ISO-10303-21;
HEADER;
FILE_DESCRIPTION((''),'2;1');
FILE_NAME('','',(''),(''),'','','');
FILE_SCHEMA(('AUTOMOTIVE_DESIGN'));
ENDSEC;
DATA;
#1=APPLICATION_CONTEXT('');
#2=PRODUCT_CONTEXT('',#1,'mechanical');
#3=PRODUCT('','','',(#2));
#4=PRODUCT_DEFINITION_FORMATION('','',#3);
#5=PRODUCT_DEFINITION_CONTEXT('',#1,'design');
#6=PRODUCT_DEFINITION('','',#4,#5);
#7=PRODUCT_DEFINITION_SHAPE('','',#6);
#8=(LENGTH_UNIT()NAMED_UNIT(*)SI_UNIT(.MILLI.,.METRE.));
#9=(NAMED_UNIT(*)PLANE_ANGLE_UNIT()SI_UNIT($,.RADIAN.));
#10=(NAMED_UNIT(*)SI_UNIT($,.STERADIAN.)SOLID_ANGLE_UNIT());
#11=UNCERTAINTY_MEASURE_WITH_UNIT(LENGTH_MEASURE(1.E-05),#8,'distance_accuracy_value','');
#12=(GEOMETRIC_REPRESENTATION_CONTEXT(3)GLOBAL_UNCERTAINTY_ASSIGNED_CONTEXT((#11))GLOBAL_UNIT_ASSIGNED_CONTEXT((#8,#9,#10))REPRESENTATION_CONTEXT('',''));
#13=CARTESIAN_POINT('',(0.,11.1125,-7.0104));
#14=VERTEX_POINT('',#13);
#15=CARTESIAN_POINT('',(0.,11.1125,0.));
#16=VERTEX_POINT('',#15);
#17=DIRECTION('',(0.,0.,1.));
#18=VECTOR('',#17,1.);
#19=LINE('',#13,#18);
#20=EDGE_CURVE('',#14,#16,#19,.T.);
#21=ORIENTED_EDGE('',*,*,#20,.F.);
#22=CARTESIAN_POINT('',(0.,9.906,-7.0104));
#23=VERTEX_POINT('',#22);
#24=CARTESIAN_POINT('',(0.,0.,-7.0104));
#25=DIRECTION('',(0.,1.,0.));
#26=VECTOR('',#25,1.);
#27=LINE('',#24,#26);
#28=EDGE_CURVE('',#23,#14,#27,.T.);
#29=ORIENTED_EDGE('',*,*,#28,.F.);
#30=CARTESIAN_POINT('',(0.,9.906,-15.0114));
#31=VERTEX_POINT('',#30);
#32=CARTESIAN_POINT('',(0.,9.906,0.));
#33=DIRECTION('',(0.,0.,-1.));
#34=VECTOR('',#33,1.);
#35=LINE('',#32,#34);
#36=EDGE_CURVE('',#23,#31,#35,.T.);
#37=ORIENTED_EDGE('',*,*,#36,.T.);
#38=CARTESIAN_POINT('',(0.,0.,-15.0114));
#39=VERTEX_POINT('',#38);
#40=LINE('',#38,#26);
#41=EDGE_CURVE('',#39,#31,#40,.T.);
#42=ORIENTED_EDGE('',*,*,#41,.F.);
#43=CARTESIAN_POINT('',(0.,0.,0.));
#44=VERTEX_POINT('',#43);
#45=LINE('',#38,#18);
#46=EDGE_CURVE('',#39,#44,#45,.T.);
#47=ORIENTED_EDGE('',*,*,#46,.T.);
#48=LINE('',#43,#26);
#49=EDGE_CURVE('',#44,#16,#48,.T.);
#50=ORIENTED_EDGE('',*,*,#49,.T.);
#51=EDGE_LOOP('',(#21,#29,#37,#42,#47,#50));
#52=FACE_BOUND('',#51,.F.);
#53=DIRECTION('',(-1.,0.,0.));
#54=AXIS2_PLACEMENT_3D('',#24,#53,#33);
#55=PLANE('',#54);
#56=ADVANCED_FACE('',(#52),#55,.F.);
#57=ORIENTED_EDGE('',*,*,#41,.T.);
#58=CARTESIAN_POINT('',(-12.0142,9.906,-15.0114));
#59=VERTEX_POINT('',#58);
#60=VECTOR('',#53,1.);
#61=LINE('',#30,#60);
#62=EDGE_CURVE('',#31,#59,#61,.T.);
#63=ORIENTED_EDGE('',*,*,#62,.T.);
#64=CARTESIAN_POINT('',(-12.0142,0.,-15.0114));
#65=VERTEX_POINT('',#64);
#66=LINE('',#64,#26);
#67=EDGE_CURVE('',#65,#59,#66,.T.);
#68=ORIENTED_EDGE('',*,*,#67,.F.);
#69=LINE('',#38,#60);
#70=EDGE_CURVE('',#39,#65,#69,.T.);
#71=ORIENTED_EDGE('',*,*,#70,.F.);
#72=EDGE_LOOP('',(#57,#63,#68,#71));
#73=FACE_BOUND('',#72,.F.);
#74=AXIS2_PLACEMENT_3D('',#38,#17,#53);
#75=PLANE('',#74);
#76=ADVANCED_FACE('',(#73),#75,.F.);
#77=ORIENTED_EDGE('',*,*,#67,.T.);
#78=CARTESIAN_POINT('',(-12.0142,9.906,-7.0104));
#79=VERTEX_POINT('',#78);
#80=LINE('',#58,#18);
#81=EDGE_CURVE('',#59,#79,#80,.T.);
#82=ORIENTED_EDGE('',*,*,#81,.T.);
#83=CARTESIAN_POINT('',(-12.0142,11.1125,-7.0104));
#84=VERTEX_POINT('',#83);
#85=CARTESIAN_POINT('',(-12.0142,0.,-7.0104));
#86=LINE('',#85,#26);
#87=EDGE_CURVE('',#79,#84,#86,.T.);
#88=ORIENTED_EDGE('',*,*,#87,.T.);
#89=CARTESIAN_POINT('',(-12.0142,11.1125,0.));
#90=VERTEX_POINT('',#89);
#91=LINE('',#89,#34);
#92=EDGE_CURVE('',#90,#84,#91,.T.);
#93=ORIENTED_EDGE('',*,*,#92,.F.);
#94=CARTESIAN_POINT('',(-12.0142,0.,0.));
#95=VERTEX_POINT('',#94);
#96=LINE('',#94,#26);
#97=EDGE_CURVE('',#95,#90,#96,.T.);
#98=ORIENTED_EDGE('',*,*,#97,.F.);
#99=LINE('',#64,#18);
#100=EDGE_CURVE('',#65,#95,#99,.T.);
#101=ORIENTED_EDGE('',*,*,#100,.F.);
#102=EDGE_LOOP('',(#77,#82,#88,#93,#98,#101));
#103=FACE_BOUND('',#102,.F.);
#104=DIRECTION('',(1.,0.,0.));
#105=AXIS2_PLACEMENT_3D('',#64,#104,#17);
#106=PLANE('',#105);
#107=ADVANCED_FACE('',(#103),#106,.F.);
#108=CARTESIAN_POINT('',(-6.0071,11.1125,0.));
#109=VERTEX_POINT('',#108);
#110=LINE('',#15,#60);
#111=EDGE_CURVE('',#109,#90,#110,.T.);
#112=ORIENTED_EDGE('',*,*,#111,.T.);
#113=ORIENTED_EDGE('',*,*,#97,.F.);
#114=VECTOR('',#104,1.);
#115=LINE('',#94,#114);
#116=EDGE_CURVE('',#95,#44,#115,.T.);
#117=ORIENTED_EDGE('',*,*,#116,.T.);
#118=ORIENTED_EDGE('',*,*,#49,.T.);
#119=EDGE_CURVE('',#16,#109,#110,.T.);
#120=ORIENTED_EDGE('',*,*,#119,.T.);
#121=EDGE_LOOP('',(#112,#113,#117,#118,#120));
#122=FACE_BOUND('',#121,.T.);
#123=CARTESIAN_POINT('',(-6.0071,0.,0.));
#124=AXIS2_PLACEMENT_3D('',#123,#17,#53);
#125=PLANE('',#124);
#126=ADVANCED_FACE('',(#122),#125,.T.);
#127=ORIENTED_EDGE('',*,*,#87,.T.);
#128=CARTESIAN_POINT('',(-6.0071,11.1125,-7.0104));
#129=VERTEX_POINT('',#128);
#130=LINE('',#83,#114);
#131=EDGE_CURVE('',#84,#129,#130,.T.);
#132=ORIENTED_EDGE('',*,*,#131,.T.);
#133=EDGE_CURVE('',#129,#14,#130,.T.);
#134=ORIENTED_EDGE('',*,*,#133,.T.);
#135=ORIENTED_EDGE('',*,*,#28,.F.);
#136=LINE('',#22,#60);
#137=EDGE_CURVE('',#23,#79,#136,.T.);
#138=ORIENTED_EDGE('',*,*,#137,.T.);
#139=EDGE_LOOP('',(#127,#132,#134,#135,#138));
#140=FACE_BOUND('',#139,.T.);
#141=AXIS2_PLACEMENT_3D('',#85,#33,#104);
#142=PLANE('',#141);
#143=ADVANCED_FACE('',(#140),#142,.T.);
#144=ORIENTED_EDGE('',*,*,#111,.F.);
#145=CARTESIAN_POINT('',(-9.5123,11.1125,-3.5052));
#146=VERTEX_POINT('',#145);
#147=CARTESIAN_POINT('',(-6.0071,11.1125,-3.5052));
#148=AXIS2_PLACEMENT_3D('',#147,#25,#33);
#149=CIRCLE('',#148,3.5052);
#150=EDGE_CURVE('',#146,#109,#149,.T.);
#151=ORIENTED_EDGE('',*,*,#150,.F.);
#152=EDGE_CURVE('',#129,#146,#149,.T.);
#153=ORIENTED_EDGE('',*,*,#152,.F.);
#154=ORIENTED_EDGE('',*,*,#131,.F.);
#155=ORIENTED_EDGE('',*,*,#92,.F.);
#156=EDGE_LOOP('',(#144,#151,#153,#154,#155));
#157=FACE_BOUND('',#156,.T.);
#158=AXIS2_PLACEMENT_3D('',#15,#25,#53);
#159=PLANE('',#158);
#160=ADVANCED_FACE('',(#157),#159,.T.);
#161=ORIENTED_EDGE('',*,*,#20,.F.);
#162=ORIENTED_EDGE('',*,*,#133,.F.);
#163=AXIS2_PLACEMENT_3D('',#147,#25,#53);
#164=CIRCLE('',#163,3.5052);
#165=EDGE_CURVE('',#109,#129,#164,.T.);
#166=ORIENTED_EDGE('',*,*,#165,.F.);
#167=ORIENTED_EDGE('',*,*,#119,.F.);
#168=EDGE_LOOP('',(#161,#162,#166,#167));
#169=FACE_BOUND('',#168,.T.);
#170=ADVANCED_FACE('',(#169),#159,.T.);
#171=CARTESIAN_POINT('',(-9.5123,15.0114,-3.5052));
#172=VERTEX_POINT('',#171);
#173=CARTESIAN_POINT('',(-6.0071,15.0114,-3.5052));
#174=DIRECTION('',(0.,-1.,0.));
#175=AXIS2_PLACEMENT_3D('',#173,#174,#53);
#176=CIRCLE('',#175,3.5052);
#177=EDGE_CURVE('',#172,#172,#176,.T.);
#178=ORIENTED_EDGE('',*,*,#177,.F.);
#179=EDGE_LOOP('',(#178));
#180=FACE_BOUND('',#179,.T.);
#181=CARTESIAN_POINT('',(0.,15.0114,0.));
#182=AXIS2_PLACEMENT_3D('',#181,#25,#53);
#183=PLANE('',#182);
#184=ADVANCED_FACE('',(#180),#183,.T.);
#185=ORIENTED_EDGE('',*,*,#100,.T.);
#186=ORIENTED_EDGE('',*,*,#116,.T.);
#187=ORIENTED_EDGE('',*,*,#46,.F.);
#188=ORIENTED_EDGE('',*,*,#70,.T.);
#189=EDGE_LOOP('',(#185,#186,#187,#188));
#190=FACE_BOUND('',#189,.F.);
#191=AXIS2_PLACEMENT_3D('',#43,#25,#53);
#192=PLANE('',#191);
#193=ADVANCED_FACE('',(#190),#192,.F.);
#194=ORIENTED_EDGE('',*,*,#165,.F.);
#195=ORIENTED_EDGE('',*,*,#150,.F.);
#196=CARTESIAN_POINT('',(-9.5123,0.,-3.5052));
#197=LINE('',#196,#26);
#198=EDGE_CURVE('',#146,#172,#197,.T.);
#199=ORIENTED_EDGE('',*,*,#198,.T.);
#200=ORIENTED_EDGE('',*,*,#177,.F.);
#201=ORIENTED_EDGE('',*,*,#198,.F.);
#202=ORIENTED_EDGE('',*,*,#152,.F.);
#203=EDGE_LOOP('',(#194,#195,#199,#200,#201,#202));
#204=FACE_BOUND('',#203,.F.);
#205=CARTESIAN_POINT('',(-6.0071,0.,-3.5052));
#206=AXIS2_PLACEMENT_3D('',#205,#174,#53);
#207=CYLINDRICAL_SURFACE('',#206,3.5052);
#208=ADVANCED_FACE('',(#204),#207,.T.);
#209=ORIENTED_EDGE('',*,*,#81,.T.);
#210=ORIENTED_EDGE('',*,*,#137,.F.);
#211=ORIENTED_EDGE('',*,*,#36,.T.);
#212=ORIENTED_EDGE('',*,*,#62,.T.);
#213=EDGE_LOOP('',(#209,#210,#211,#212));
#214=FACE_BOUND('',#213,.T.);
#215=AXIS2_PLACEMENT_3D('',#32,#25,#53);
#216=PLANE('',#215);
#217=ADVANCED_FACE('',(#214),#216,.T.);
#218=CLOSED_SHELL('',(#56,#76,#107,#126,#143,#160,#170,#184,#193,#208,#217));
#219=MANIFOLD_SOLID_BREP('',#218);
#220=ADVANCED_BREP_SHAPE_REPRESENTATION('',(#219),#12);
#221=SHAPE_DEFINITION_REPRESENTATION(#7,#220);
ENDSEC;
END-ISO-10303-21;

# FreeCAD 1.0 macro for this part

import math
import FreeCAD as App
import Part
import Sketcher
Q = App.Units.Quantity


def add_polygon(sketch, points):
    """Adds a closed chain of lines whose ends are joined by coincident constraints."""
    first, n = sketch.GeometryCount, len(points)
    for a, b in zip(points, points[1:] + points[:1]):
        sketch.addGeometry(Part.LineSegment(App.Vector(*a, 0), App.Vector(*b, 0)), False)
    for i in range(n):
        sketch.addConstraint(Sketcher.Constraint("Coincident", first + i, 2, first + (i + 1) % n, 1))

doc = App.newDocument("Part")
body = doc.addObject("PartDesign::Body", "Body")

# Sketch on XZ plane
sketch1 = body.newObject("Sketcher::SketchObject", "Sketch")
sketch1.AttachmentSupport = (doc.getObject("XZ_Plane"), [""])
sketch1.MapMode = "FlatFace"
add_polygon(sketch1, [(-12, -7), (0, -7), (0, -15), (-12, -15)])  # lines 0-3
sketch1.addConstraint([
    Sketcher.Constraint("Horizontal", 0),
    Sketcher.Constraint("Vertical", 1),
    Sketcher.Constraint("Horizontal", 2),
    Sketcher.Constraint("Vertical", 3),
    Sketcher.Constraint("PointOnObject", 0, 2, -2),
    Sketcher.Constraint("DistanceX", 0, 1, 0, 2, Q("0.473 in")),
    Sketcher.Constraint("DistanceY", 0, 2, -1, 1, Q("0.276 in")),
    Sketcher.Constraint("DistanceY", 1, 2, -1, 1, Q("0.591 in")),
])
pad1 = body.newObject("PartDesign::Pad", "Pad")
pad1.Profile = sketch1
pad1.Length = Q("0.39 in")
pad1.Reversed = True

# Sketch on XZ plane
sketch2 = body.newObject("Sketcher::SketchObject", "Sketch001")
sketch2.AttachmentSupport = (doc.getObject("XZ_Plane"), [""])
sketch2.MapMode = "FlatFace"
sketch2.addGeometry([
    Part.LineSegment(App.Vector(-6, 0, 0), App.Vector(0, 0, 0)),  # 0
    Part.LineSegment(App.Vector(0, 0, 0), App.Vector(0, -7, 0)),  # 1
    Part.LineSegment(App.Vector(0, -7, 0), App.Vector(-6, -7, 0)),  # 2
    Part.ArcOfCircle(Part.Circle(App.Vector(-6, -3.5, 0), App.Vector(0, 0, 1), 3.5), math.radians(-90), math.radians(90)),  # 3
    Part.LineSegment(App.Vector(-12, 0, 0), App.Vector(-6, 0, 0)),  # 4
    Part.ArcOfCircle(Part.Circle(App.Vector(-6, -3.5, 0), App.Vector(0, 0, 1), 3.5), math.radians(90), math.radians(270)),  # 5
    Part.LineSegment(App.Vector(-6, -7, 0), App.Vector(-12, -7, 0)),  # 6
    Part.LineSegment(App.Vector(-12, -7, 0), App.Vector(-12, 0, 0)),  # 7
], False)
sketch2.addConstraint([
    Sketcher.Constraint("Coincident", 0, 2, 1, 1),
    Sketcher.Constraint("Coincident", 1, 2, 2, 1),
    Sketcher.Constraint("Tangent", 2, 2, 3, 1),
    Sketcher.Constraint("Tangent", 3, 2, 0, 1),
    Sketcher.Constraint("Tangent", 4, 2, 5, 1),
    Sketcher.Constraint("Tangent", 5, 2, 6, 1),
    Sketcher.Constraint("Coincident", 6, 2, 7, 1),
    Sketcher.Constraint("Coincident", 7, 2, 4, 1),
    Sketcher.Constraint("Horizontal", 0),
    Sketcher.Constraint("Vertical", 1),
    Sketcher.Constraint("Horizontal", 2),
    Sketcher.Constraint("Horizontal", 4),
    Sketcher.Constraint("Horizontal", 6),
    Sketcher.Constraint("Vertical", 7),
    Sketcher.Constraint("Coincident", 0, 2, -1, 1),
    Sketcher.Constraint("Coincident", 5, 3, 3, 3),
    Sketcher.Constraint("Equal", 3, 5),
    Sketcher.Constraint("Equal", 2, 4),
    Sketcher.Constraint("Radius", 3, Q("0.138 in")),
    Sketcher.Constraint("DistanceX", 0, 1, 0, 2, Q("0.2365 in")),
])
pad2 = body.newObject("PartDesign::Pad", "Pad001")
pad2.Profile = sketch2
pad2.Length = Q("0.4375 in")
pad2.Reversed = True

# Sketch on XZ plane
sketch3 = body.newObject("Sketcher::SketchObject", "Sketch002")
sketch3.AttachmentSupport = (doc.getObject("XZ_Plane"), [""])
sketch3.MapMode = "FlatFace"
sketch3.addGeometry(Part.Circle(App.Vector(-6, -3.5, 0), App.Vector(0, 0, 1), 3.5), False)
sketch3.addConstraint([
    Sketcher.Constraint("Diameter", 0, Q("0.276 in")),
    Sketcher.Constraint("DistanceY", 0, 3, -1, 1, Q("0.138 in")),
    Sketcher.Constraint("DistanceX", 0, 3, -1, 1, Q("0.2365 in")),
])
pad3 = body.newObject("PartDesign::Pad", "Pad002")
pad3.Profile = sketch3
pad3.Length = Q("0.591 in")
pad3.Reversed = True

doc.recompute()
